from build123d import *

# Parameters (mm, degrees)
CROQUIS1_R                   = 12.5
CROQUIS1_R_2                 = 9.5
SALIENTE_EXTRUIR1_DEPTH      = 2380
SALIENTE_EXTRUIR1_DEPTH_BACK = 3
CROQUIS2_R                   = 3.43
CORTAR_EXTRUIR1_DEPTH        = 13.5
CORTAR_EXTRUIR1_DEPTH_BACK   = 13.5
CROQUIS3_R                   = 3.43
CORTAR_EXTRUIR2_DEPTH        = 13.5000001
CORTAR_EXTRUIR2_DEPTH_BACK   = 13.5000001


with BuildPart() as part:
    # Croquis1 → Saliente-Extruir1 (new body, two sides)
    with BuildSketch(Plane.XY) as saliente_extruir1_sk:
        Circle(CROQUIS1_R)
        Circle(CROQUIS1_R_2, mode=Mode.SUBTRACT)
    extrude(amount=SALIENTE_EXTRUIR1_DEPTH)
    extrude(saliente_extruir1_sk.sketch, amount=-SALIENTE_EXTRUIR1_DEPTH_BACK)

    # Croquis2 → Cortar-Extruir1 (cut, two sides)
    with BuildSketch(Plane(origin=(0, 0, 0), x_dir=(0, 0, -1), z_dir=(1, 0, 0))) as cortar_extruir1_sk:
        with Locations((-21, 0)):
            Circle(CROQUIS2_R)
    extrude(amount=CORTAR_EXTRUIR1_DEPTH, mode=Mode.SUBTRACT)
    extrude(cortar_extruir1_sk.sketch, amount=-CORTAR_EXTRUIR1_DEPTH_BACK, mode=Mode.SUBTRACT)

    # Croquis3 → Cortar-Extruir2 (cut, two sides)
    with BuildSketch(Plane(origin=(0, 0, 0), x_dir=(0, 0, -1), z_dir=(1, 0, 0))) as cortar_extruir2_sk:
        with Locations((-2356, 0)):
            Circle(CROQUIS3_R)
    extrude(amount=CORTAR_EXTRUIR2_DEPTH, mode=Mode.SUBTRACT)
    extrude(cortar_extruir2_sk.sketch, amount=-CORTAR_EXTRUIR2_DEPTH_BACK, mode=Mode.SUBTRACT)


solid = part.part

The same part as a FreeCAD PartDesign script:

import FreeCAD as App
import Part
import Sketcher
Q = App.Units.Quantity

doc = App.newDocument("Part")
body = doc.addObject("PartDesign::Body", "Body")

# Sketch on XY plane
sketch1 = body.newObject("Sketcher::SketchObject", "Sketch")
sketch1.AttachmentSupport = (doc.getObject("XY_Plane"), [""])
sketch1.MapMode = "FlatFace"
sketch1.addGeometry([
    Part.Circle(App.Vector(0, 0, 0), App.Vector(0, 0, 1), 12),
    Part.Circle(App.Vector(0, 0, 0), App.Vector(0, 0, 1), 10),
], False)
sketch1.addConstraint([
    Sketcher.Constraint("Coincident", 0, 3, -1, 1),
    Sketcher.Constraint("Coincident", 1, 3, -1, 1),
    Sketcher.Constraint("Diameter", 0, Q("25 mm")),
    Sketcher.Constraint("Diameter", 1, Q("19 mm")),
])
pad1 = body.newObject("PartDesign::Pad", "Pad")
pad1.Profile = sketch1
pad1.Type = "TwoLengths"
pad1.Length = 2380
pad1.Length2 = 3

# Sketch on YZ plane
sketch2 = body.newObject("Sketcher::SketchObject", "Sketch001")
sketch2.AttachmentSupport = (doc.getObject("YZ_Plane"), [""])
sketch2.MapMode = "FlatFace"
sketch2.addGeometry(Part.Circle(App.Vector(0, 21, 0), App.Vector(0, 0, 1), 3.4), False)
sketch2.addConstraint([
    Sketcher.Constraint("PointOnObject", 0, 3, -2),
    Sketcher.Constraint("Diameter", 0, Q("6.86 mm")),
    Sketcher.Constraint("DistanceY", -1, 1, 0, 3, Q("21 mm")),
])
pocket1 = body.newObject("PartDesign::Pocket", "Pocket")
pocket1.Profile = sketch2
pocket1.Type = "ThroughAll"
pocket1.Midplane = True

# Sketch on YZ plane
sketch3 = body.newObject("Sketcher::SketchObject", "Sketch002")
sketch3.AttachmentSupport = (doc.getObject("YZ_Plane"), [""])
sketch3.MapMode = "FlatFace"
sketch3.addGeometry(Part.Circle(App.Vector(0, 2356, 0), App.Vector(0, 0, 1), 3.4), False)
sketch3.addConstraint([
    Sketcher.Constraint("PointOnObject", 0, 3, -2),
    Sketcher.Constraint("Diameter", 0, Q("6.86 mm")),
    Sketcher.Constraint("DistanceY", -1, 1, 0, 3, Q("2356 mm")),
])
pocket2 = body.newObject("PartDesign::Pocket", "Pocket001")
pocket2.Profile = sketch3
pocket2.Type = "ThroughAll"
pocket2.Midplane = True

doc.recompute()
